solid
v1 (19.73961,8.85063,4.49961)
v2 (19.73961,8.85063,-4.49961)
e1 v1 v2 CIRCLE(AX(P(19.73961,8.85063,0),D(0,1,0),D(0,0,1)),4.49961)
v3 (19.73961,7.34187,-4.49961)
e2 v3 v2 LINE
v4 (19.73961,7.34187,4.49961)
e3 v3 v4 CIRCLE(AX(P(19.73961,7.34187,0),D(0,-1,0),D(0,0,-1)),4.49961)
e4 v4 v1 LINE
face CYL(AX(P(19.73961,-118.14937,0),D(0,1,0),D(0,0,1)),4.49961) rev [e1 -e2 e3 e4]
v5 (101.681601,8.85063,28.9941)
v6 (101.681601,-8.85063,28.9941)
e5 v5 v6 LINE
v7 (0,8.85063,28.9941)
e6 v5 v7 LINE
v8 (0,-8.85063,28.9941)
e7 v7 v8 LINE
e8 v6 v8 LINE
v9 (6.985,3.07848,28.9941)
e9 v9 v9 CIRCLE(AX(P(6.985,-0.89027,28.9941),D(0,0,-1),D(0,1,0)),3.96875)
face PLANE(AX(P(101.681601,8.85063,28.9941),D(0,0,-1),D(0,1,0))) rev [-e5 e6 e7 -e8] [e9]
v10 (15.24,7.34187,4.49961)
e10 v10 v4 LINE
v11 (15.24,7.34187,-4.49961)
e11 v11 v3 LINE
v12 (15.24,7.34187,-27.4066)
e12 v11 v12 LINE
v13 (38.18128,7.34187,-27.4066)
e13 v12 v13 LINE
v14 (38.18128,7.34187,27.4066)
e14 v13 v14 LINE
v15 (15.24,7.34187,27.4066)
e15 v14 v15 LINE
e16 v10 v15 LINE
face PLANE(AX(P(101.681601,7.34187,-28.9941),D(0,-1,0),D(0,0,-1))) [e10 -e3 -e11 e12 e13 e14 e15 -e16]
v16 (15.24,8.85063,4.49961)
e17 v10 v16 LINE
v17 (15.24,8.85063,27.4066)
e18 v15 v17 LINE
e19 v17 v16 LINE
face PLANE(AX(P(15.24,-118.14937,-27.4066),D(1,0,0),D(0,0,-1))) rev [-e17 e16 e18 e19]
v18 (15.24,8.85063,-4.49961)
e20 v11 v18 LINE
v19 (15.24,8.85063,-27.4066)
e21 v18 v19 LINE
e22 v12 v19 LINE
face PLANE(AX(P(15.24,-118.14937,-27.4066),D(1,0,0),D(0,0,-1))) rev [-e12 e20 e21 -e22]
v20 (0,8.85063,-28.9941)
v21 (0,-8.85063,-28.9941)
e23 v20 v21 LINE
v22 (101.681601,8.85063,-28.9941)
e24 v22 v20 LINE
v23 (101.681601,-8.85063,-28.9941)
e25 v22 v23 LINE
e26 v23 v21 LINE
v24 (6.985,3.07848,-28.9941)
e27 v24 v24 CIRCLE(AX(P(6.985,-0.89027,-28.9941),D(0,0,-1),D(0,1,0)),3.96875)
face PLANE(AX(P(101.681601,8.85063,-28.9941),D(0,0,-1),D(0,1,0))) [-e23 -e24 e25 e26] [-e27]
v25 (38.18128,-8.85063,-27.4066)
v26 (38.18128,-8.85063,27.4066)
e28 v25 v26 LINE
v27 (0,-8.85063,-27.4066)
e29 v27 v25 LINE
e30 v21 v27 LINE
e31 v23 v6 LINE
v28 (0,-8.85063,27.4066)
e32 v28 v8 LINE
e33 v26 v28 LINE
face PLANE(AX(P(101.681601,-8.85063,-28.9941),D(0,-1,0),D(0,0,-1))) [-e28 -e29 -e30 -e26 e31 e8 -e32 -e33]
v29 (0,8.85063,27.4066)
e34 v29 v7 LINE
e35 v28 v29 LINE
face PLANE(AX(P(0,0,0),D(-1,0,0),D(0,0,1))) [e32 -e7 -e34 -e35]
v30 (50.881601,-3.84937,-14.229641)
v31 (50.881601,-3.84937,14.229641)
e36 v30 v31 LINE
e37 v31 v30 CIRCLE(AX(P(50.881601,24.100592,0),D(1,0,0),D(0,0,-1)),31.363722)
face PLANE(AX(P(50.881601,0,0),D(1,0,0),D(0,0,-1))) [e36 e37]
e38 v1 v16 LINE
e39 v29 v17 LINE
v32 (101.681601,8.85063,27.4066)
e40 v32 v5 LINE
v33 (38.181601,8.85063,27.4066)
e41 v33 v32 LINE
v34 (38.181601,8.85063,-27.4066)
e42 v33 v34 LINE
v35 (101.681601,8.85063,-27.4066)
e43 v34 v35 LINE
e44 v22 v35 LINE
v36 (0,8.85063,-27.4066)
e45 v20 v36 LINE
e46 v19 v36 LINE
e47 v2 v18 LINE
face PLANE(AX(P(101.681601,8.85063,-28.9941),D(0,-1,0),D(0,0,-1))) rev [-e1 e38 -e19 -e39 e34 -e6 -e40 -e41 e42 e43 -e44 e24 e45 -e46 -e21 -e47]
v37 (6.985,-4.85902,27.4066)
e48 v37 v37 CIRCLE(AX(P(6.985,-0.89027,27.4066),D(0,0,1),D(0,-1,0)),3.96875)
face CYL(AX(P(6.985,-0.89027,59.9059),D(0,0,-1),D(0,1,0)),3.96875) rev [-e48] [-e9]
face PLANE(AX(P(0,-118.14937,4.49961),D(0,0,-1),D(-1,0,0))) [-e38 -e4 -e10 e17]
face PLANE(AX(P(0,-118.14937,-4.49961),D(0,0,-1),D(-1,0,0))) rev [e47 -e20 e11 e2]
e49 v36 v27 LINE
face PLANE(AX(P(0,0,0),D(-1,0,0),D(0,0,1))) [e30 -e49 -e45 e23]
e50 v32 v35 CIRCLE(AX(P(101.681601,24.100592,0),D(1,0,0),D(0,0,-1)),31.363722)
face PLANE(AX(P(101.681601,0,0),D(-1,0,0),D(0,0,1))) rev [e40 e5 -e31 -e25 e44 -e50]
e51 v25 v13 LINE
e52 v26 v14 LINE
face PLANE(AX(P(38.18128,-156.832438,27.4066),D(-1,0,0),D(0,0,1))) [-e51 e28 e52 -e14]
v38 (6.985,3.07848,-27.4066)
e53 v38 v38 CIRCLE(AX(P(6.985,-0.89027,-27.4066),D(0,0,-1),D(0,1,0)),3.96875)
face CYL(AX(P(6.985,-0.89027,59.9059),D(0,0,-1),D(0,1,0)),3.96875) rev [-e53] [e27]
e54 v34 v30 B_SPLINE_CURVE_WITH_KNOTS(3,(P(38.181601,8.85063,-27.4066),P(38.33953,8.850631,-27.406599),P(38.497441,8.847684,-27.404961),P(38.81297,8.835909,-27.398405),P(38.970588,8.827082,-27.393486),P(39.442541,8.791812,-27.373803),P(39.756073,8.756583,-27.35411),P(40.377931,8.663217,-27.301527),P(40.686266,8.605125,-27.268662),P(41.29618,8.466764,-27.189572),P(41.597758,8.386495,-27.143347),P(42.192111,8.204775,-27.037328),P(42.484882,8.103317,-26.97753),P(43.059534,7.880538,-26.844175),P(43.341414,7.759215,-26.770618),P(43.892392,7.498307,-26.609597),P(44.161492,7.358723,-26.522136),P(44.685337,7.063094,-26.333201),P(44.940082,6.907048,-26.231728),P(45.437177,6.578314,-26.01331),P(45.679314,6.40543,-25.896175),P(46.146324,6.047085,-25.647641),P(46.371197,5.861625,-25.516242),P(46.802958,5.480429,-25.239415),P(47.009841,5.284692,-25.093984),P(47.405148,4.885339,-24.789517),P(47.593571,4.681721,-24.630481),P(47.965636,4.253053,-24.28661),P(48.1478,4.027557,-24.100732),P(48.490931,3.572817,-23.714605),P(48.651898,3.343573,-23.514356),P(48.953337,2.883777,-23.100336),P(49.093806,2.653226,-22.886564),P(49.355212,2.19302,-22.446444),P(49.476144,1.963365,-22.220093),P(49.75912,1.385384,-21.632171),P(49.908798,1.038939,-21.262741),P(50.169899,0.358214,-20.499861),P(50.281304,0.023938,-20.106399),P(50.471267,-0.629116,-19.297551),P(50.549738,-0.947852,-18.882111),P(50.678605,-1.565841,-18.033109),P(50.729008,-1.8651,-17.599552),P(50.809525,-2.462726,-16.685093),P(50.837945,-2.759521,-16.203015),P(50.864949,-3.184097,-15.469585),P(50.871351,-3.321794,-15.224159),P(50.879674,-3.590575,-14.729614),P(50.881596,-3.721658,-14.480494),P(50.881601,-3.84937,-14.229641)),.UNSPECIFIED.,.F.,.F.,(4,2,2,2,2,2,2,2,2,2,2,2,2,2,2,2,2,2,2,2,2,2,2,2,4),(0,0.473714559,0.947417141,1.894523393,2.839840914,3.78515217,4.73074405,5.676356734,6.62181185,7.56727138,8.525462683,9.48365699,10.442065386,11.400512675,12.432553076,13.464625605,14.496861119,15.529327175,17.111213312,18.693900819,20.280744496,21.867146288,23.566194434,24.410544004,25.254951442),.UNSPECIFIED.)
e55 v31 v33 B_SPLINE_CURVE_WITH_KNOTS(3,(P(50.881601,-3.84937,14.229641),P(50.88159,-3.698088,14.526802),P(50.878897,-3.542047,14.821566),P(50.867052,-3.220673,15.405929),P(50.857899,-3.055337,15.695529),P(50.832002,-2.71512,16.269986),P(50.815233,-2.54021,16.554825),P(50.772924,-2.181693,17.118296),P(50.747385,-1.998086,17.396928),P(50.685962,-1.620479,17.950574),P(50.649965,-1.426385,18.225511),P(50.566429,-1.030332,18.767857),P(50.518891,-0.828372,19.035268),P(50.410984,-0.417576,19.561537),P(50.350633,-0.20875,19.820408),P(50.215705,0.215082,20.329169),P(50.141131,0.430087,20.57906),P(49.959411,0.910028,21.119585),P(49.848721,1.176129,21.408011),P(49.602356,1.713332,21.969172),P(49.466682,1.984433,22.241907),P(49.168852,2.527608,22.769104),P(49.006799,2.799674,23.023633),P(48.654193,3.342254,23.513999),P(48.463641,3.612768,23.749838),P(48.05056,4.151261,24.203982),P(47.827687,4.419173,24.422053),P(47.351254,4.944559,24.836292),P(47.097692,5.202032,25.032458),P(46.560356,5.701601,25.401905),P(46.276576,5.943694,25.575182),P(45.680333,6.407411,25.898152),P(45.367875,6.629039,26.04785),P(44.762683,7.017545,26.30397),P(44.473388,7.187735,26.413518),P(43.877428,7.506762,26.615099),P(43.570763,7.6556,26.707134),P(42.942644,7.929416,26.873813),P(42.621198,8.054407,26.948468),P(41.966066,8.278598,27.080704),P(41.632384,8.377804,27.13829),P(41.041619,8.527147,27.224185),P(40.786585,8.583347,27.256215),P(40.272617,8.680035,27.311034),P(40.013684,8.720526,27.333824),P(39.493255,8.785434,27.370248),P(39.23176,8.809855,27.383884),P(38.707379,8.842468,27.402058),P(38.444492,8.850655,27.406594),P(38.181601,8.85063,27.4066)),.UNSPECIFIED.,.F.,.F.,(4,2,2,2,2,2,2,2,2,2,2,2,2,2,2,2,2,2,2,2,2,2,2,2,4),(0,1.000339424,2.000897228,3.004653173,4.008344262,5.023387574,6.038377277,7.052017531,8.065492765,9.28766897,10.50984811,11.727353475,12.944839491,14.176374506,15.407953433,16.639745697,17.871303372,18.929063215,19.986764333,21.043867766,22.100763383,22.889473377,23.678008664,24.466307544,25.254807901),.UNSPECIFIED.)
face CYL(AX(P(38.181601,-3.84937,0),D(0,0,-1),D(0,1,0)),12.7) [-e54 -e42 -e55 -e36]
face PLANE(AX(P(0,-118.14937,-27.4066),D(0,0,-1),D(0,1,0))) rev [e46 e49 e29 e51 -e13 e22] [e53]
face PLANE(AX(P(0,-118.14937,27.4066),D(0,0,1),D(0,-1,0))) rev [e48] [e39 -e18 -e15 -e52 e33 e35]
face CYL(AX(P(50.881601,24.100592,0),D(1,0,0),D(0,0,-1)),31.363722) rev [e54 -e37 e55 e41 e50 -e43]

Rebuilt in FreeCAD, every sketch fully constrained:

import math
import FreeCAD as App
import Part
import Sketcher
from FreeCAD import Vector
Q = App.Units.Quantity


def edges_at(feature, points):
    """Names of the edges that pass closest to the given points."""
    edges = feature.Shape.Edges
    near = lambda p: min(range(len(edges)), key=lambda i: edges[i].distToShape(Part.Vertex(*p))[0])
    return sorted({f"Edge{near(p) + 1}" for p in points})


def add_polygon(sketch, points):
    """Adds a closed chain of lines whose ends are joined by coincident constraints."""
    first, n = sketch.GeometryCount, len(points)
    for a, b in zip(points, points[1:] + points[:1]):
        sketch.addGeometry(Part.LineSegment(App.Vector(*a, 0), App.Vector(*b, 0)), False)
    for i in range(n):
        sketch.addConstraint(Sketcher.Constraint("Coincident", first + i, 2, first + (i + 1) % n, 1))

doc = App.newDocument("Part")
body = doc.addObject("PartDesign::Body", "Body")

# Sketch on YZ plane
sketch1 = body.newObject("Sketcher::SketchObject", "Sketch")
sketch1.AttachmentSupport = (doc.getObject("YZ_Plane"), [""])
sketch1.MapMode = "FlatFace"
add_polygon(sketch1, [(9, 29), (-9, 29), (-9, -29), (9, -29)])  # lines 0-3
sketch1.addConstraint([
    Sketcher.Constraint("Horizontal", 0),
    Sketcher.Constraint("Vertical", 1),
    Sketcher.Constraint("Horizontal", 2),
    Sketcher.Constraint("Vertical", 3),
    Sketcher.Constraint("Symmetric", 0, 2, 2, 2, -1, 1),
    Sketcher.Constraint("DistanceY", 1, 2, 1, 1, Q("2.283 in")),
    Sketcher.Constraint("DistanceX", 0, 2, 0, 1, Q("0.6969 in")),
])
pad1 = body.newObject("PartDesign::Pad", "Pad")
pad1.Profile = sketch1
pad1.Length = 101.681601

# Sketch on XZ plane
sketch2 = body.newObject("Sketcher::SketchObject", "Sketch001")
sketch2.AttachmentSupport = (doc.getObject("XZ_Plane"), [""])
sketch2.MapMode = "FlatFace"
sketch2.AttachmentOffset = App.Placement(Vector(0, 0, -8.85063), App.Rotation())
add_polygon(sketch2, [(0, -27), (0, 27), (15, 27), (15, -27)])  # lines 0-3
sketch2.addConstraint([
    Sketcher.Constraint("Vertical", 0),
    Sketcher.Constraint("Horizontal", 1),
    Sketcher.Constraint("Vertical", 2),
    Sketcher.Constraint("Horizontal", 3),
    Sketcher.Constraint("Symmetric", 0, 2, 3, 2, -1, 1),
    Sketcher.Constraint("DistanceX", 1, 1, 1, 2, Q("0.6 in")),
    Sketcher.Constraint("DistanceY", 0, 1, 0, 2, Q("2.158 in")),
])
pocket1 = body.newObject("PartDesign::Pocket", "Pocket")
pocket1.Profile = sketch2
pocket1.Length = Q("5 in")
pocket1.Reversed = True

# Sketch on XZ plane
sketch3 = body.newObject("Sketcher::SketchObject", "Sketch002")
sketch3.AttachmentSupport = (doc.getObject("XZ_Plane"), [""])
sketch3.MapMode = "FlatFace"
sketch3.AttachmentOffset = App.Placement(Vector(0, 0, -8.85063), App.Rotation())
sketch3.addGeometry([
    Part.LineSegment(Vector(19.7, -4.5, 0), Vector(15.2, -4.5, 0)),
    Part.LineSegment(Vector(15.2, -4.5, 0), Vector(15.2, 4.5, 0)),
    Part.LineSegment(Vector(15.2, 4.5, 0), Vector(19.7, 4.5, 0)),
    Part.ArcOfCircle(Part.Circle(Vector(19.7, 0, 0), Vector(0, 0, 1), 4.5), math.radians(-90), math.radians(90)),
], False)
sketch3.addConstraint([
    Sketcher.Constraint("Coincident", 0, 2, 1, 1),
    Sketcher.Constraint("Coincident", 1, 2, 2, 1),
    Sketcher.Constraint("Tangent", 2, 2, 3, 2),
    Sketcher.Constraint("Tangent", 3, 1, 0, 1),
    Sketcher.Constraint("Horizontal", 0),
    Sketcher.Constraint("Vertical", 1),
    Sketcher.Constraint("Horizontal", 2),
    Sketcher.Constraint("PointOnObject", 3, 3, -1),
    Sketcher.Constraint("DistanceX", -1, 1, 0, 2, Q("0.6 in")),
    Sketcher.Constraint("DistanceY", 1, 1, 1, 2, Q("0.3543 in")),
    Sketcher.Constraint("DistanceX", 0, 2, 0, 1, Q("4.49961 mm")),
])
pocket2 = body.newObject("PartDesign::Pocket", "Pocket001")
pocket2.Profile = sketch3
pocket2.Length = Q("5 in")
pocket2.Reversed = True

# Sketch on YZ plane
sketch4 = body.newObject("Sketcher::SketchObject", "Sketch003")
sketch4.AttachmentSupport = (doc.getObject("YZ_Plane"), [""])
sketch4.MapMode = "FlatFace"
sketch4.AttachmentOffset = App.Placement(Vector(0, 0, 101.681601), App.Rotation())
sketch4.addGeometry([
    Part.LineSegment(Vector(9, -27, 0), Vector(9, 27, 0)),
    Part.ArcOfCircle(Part.Circle(Vector(24, 0, 0), Vector(0, 0, 1), 31), math.radians(119), math.radians(241)),
], False)
sketch4.addConstraint([
    Sketcher.Constraint("Coincident", 0, 1, 1, 2),
    Sketcher.Constraint("Coincident", 1, 1, 0, 2),
    Sketcher.Constraint("Vertical", 0),
    Sketcher.Constraint("PointOnObject", 1, 3, -1),
    Sketcher.Constraint("DistanceY", 0, 1, 0, 2, Q("2.158 in")),
    Sketcher.Constraint("Radius", 1, Q("31.363722 mm")),
    Sketcher.Constraint("DistanceX", -1, 1, 0, 1, Q("8.85063 mm")),
])
pocket3 = body.newObject("PartDesign::Pocket", "Pocket002")
pocket3.Profile = sketch4
pocket3.Length = Q("2 in")
doc.recompute()

fillet = body.newObject("PartDesign::Fillet", "Fillet")
fillet.Base = (pocket3, edges_at(pocket3, [(50.882, 8.851, 0)]))
fillet.Radius = Q("0.5 in")

# Sketch on XY plane
sketch5 = body.newObject("Sketcher::SketchObject", "Sketch004")
sketch5.AttachmentSupport = (doc.getObject("XY_Plane"), [""])
sketch5.MapMode = "FlatFace"
sketch5.AttachmentOffset = App.Placement(Vector(0, 0, -1.1415 * 25.4), App.Rotation())
sketch5.addGeometry(Part.Circle(Vector(7, -0.9, 0), Vector(0, 0, 1), 4), False)
sketch5.addConstraint([
    Sketcher.Constraint("Diameter", 0, Q("0.3125 in")),
    Sketcher.Constraint("DistanceX", -1, 1, 0, 3, Q("0.275 in")),
    Sketcher.Constraint("DistanceY", 0, 3, -1, 1, Q("0.89027 mm")),
])
pocket4 = body.newObject("PartDesign::Pocket", "Pocket003")
pocket4.Profile = sketch5
pocket4.Length = Q("3.5 in")
pocket4.Reversed = True

# Sketch on XZ plane
sketch6 = body.newObject("Sketcher::SketchObject", "Sketch005")
sketch6.AttachmentSupport = (doc.getObject("XZ_Plane"), [""])
sketch6.MapMode = "FlatFace"
sketch6.AttachmentOffset = App.Placement(Vector(0, 0, 8.85063), App.Rotation())
sketch6.addGeometry([
    Part.LineSegment(Vector(38.2, -27.4, 0), Vector(38.2, 27.4, 0)),  # 0
    Part.LineSegment(Vector(38.2, 27.4, 0), Vector(15.2, 27.4, 0)),  # 1
    Part.LineSegment(Vector(15.2, 27.4, 0), Vector(15.2, 4.5, 0)),  # 2
    Part.LineSegment(Vector(15.2, 4.5, 0), Vector(19.7, 4.5, 0)),  # 3
    Part.ArcOfCircle(Part.Circle(Vector(19.7, 0, 0), Vector(0, 0, 1), 4.5), math.radians(-90), math.radians(90)),  # 4
    Part.LineSegment(Vector(19.7, -4.5, 0), Vector(15.2, -4.5, 0)),  # 5
    Part.LineSegment(Vector(15.2, -4.5, 0), Vector(15.2, -27.4, 0)),  # 6
    Part.LineSegment(Vector(15.2, -27.4, 0), Vector(38.2, -27.4, 0)),  # 7
], False)
sketch6.addConstraint([
    Sketcher.Constraint("Coincident", 0, 2, 1, 1),
    Sketcher.Constraint("Coincident", 1, 2, 2, 1),
    Sketcher.Constraint("Coincident", 2, 2, 3, 1),
    Sketcher.Constraint("Tangent", 3, 2, 4, 2),
    Sketcher.Constraint("Tangent", 4, 1, 5, 1),
    Sketcher.Constraint("Coincident", 5, 2, 6, 1),
    Sketcher.Constraint("Coincident", 6, 2, 7, 1),
    Sketcher.Constraint("Coincident", 7, 2, 0, 1),
    Sketcher.Constraint("Vertical", 0),
    Sketcher.Constraint("Horizontal", 1),
    Sketcher.Constraint("Vertical", 2),
    Sketcher.Constraint("Horizontal", 3),
    Sketcher.Constraint("Horizontal", 5),
    Sketcher.Constraint("Vertical", 6),
    Sketcher.Constraint("Horizontal", 7),
    Sketcher.Constraint("Symmetric", 2, 2, 5, 2, -1),
    Sketcher.Constraint("Equal", 2, 6),
    Sketcher.Constraint("DistanceX", -1, 1, 1, 2, Q("0.6 in")),
    Sketcher.Constraint("DistanceY", 0, 1, 0, 2, Q("2.158 in")),
    Sketcher.Constraint("DistanceX", 1, 2, 1, 1, Q("0.9032 in")),
    Sketcher.Constraint("Radius", 4, Q("4.49961 mm")),
    Sketcher.Constraint("DistanceX", 3, 1, 3, 2, Q("4.49961 mm")),
])
pocket5 = body.newObject("PartDesign::Pocket", "Pocket004")
pocket5.Profile = sketch6
pocket5.Type = "TwoLengths"
pocket5.Length = 108.206065
pocket5.Length2 = Q("0.6375 in")
pocket5.Reversed = True

doc.recompute()
